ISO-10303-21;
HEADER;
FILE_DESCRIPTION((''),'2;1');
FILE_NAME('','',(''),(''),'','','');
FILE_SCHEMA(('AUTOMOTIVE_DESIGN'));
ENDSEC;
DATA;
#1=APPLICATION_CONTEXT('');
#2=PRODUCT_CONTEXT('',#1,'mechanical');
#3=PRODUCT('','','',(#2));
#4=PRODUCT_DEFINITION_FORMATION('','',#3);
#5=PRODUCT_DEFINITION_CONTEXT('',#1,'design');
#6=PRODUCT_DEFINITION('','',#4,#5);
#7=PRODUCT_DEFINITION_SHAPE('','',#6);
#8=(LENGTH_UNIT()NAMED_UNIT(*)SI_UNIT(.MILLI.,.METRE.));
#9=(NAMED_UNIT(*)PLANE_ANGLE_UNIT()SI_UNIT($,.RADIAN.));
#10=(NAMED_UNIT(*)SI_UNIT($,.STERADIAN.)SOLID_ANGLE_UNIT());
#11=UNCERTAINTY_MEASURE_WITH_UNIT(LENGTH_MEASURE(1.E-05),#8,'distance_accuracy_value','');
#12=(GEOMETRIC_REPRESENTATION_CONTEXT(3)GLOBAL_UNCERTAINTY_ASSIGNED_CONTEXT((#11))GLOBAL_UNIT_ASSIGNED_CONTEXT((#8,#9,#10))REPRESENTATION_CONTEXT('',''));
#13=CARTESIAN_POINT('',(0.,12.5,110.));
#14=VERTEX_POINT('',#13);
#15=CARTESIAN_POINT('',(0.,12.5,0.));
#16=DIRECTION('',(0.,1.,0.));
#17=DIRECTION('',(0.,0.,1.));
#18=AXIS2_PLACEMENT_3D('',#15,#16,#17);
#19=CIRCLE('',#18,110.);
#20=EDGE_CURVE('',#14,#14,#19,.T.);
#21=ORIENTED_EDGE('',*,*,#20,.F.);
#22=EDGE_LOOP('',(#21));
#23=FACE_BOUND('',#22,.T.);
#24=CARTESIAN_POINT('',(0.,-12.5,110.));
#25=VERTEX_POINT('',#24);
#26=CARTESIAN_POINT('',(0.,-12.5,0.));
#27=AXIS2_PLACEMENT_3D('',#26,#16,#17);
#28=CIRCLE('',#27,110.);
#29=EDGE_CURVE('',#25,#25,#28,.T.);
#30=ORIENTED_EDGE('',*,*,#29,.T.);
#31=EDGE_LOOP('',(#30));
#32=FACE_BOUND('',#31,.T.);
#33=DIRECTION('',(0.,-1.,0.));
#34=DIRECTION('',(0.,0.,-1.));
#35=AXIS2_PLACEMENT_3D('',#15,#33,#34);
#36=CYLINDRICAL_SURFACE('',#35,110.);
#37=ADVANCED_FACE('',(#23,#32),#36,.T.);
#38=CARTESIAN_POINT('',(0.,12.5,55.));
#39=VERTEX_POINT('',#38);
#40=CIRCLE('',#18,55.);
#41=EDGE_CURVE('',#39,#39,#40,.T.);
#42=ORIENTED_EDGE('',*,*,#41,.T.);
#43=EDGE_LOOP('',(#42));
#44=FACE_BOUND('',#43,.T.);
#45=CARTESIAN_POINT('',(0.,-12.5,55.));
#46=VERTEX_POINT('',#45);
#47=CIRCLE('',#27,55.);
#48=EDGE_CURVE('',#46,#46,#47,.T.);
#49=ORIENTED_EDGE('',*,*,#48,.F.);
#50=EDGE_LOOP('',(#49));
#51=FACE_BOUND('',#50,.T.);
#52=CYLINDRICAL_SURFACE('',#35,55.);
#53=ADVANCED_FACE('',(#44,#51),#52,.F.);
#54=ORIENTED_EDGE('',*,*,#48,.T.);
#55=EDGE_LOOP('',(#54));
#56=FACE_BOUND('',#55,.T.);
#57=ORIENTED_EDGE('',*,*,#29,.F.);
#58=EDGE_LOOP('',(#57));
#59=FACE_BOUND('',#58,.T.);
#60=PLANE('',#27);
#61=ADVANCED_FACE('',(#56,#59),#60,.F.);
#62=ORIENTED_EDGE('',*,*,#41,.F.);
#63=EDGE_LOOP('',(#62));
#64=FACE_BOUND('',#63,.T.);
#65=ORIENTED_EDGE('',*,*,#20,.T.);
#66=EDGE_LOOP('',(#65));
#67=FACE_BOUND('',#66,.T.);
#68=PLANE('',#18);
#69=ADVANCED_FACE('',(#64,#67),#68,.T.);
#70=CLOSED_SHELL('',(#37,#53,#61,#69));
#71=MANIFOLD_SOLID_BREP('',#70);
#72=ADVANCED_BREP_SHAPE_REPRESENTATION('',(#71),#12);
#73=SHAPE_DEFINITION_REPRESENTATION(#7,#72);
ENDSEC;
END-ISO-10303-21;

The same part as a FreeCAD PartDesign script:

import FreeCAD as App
import Part
import Sketcher

doc = App.newDocument("Part")
body = doc.addObject("PartDesign::Body", "Body")

sketch1 = body.newObject("Sketcher::SketchObject", "Sketch")
sketch1.AttachmentSupport = (doc.getObject("XZ_Plane"), [""])
sketch1.MapMode = "FlatFace"
sketch1.addGeometry([
    Part.Circle(App.Vector(0, 0, 0), App.Vector(0, 0, 1), 110),
    Part.Circle(App.Vector(0, 0, 0), App.Vector(0, 0, 1), 55),
], False)
sketch1.addConstraint([
    Sketcher.Constraint("Coincident", 0, 3, -1, 1),
    Sketcher.Constraint("Coincident", 1, 3, -1, 1),
    Sketcher.Constraint("Diameter", 0, 220.0),
    Sketcher.Constraint("Diameter", 1, 110.0),
])
pad1 = body.newObject("PartDesign::Pad", "Pad")
pad1.Profile = sketch1
pad1.Length = 25
pad1.Midplane = True

doc.recompute()
